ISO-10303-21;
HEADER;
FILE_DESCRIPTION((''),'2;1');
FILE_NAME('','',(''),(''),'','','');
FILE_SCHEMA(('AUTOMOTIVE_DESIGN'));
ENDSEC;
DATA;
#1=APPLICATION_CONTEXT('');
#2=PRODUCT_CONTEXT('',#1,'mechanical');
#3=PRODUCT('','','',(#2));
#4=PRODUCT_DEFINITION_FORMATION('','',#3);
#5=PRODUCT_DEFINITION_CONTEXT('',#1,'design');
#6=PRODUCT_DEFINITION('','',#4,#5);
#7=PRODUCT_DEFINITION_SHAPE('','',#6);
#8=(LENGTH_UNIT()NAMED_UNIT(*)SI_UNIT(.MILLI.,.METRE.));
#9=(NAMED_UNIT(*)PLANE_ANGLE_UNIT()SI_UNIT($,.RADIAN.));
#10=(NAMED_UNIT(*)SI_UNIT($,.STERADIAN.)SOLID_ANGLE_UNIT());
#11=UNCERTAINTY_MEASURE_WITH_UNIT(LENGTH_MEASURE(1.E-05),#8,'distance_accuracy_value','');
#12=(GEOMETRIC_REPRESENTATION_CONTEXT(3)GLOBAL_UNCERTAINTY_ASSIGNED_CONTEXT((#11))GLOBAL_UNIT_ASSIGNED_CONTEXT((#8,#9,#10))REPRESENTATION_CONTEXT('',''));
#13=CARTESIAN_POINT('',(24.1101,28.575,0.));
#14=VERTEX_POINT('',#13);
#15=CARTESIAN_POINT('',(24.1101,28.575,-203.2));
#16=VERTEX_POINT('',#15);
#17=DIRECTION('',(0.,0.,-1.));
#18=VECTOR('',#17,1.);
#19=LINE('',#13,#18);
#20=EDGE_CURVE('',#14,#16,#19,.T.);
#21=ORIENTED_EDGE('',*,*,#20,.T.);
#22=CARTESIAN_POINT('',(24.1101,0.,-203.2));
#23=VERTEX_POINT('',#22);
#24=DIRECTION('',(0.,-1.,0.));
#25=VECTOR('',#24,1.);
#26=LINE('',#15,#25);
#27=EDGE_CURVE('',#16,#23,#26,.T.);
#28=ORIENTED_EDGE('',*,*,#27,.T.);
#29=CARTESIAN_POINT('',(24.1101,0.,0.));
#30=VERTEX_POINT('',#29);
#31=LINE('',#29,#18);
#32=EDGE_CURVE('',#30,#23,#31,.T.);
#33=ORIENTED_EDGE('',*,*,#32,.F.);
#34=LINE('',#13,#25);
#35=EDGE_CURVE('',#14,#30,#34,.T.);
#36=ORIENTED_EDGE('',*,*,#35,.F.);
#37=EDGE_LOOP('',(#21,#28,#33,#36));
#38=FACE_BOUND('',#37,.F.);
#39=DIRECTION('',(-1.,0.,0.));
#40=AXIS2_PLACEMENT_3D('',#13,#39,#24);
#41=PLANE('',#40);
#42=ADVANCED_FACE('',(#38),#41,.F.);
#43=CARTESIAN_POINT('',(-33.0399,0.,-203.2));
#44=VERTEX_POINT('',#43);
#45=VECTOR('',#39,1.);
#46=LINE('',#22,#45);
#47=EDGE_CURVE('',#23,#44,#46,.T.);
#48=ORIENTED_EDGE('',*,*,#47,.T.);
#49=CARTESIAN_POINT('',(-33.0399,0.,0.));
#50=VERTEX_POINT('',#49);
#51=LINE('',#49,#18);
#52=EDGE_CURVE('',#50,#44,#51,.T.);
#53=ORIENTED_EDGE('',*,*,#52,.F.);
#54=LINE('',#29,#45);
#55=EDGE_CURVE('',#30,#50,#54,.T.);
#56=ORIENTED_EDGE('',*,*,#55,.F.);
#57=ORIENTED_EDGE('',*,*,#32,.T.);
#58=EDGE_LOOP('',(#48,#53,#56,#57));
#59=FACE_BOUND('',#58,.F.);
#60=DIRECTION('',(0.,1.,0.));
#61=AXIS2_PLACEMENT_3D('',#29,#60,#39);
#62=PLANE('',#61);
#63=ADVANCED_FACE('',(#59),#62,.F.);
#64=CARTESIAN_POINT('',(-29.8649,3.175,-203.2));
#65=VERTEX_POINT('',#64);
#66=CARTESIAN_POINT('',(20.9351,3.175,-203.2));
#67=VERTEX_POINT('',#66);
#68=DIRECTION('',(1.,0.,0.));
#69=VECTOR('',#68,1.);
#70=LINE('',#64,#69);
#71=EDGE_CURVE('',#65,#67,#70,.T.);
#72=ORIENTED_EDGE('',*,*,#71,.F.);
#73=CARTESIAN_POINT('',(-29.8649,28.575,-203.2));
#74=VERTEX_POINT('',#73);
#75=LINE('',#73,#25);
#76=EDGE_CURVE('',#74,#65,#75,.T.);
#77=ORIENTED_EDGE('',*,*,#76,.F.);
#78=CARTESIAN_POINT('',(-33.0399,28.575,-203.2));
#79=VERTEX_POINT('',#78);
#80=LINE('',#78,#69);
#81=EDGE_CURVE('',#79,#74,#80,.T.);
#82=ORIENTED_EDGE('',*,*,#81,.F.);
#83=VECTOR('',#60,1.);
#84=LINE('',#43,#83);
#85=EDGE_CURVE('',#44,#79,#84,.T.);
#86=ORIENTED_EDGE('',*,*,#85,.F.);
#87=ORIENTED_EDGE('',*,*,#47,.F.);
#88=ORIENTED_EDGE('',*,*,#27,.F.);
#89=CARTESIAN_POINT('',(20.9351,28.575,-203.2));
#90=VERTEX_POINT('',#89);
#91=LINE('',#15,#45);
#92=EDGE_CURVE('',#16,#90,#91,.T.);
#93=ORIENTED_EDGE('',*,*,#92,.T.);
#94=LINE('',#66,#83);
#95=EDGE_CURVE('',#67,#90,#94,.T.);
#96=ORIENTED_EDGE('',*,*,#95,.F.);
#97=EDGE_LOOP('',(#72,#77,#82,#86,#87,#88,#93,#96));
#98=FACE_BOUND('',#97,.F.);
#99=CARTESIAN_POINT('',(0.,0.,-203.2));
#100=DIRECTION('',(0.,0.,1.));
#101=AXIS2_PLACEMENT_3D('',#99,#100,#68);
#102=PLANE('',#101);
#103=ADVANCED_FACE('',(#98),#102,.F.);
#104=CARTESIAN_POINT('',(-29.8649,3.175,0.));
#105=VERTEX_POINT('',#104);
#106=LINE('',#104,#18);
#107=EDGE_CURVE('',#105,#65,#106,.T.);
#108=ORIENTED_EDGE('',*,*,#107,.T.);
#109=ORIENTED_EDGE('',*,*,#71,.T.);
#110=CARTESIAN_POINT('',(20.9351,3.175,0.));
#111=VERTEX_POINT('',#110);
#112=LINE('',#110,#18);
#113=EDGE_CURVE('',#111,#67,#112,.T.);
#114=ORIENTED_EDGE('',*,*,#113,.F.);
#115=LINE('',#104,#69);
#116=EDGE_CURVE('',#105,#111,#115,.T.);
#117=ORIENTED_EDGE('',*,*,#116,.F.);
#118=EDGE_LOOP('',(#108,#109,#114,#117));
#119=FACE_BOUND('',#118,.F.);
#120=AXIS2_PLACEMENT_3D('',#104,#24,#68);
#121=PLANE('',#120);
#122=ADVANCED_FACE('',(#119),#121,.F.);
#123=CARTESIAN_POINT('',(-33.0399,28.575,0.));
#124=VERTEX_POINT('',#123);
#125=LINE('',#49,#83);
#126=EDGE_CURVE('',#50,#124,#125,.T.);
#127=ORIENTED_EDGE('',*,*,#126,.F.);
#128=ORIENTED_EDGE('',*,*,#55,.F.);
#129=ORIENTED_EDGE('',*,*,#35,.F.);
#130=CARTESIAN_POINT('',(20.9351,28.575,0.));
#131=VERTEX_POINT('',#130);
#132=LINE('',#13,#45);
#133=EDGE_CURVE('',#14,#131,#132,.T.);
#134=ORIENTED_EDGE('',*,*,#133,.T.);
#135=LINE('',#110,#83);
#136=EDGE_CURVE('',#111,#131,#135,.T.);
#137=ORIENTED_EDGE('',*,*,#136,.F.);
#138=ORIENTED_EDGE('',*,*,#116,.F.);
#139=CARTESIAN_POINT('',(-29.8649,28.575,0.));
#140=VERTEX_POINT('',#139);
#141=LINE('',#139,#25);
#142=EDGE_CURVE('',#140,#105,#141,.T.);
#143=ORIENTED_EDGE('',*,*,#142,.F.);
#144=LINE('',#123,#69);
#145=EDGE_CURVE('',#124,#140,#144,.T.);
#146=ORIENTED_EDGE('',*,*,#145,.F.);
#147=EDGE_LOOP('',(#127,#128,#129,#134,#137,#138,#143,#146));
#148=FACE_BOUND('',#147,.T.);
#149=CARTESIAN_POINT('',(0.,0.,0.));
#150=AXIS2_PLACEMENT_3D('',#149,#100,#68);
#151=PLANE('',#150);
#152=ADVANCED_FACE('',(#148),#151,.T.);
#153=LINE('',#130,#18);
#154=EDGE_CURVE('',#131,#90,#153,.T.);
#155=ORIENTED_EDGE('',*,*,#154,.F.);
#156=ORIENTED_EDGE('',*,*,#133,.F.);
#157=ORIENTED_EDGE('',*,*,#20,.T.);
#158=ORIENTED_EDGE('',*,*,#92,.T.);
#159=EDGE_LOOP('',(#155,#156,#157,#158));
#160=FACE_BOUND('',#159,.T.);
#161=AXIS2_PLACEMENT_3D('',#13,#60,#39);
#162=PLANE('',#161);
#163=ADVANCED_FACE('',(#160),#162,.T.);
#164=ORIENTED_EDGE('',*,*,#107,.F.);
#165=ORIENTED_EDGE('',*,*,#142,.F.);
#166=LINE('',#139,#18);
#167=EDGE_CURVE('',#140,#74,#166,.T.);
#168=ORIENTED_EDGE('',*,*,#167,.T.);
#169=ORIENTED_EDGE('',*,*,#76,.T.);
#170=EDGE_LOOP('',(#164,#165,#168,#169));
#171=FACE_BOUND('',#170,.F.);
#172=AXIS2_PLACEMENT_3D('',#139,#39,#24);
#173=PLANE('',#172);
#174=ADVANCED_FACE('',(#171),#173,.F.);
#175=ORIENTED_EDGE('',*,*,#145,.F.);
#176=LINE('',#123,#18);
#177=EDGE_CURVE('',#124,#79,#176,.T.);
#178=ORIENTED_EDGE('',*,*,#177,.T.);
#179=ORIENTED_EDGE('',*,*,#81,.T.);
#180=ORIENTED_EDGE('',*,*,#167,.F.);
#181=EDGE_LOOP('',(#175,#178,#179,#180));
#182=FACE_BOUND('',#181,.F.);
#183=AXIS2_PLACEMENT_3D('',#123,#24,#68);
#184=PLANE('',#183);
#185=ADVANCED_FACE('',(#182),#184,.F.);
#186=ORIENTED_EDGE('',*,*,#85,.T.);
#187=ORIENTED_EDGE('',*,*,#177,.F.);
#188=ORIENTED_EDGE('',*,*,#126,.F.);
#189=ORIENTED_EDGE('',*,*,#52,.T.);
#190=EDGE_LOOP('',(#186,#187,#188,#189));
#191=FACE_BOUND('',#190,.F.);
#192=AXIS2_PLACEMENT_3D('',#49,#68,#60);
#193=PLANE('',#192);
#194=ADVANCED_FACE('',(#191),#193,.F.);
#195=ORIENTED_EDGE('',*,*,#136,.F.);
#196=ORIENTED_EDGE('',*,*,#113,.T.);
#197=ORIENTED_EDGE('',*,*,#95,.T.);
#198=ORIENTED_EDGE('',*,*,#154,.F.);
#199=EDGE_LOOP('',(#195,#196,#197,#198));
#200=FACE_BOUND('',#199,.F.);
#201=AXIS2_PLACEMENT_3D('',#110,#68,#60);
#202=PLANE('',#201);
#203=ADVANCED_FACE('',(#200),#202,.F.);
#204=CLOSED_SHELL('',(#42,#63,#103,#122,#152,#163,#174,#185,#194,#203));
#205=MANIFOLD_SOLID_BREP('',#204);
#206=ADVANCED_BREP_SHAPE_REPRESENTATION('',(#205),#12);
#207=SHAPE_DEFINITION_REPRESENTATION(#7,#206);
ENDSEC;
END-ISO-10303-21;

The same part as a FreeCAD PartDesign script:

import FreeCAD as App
import Part
import Sketcher

V = App.Vector
Q = App.Units.Quantity

doc = App.newDocument("Part")
body = doc.addObject("PartDesign::Body", "Body")

# Sketch on XY plane
sketch1 = body.newObject("Sketcher::SketchObject", "Sketch")
sketch1.AttachmentSupport = (doc.getObject("XY_Plane"), [""])
sketch1.MapMode = "FlatFace"
sketch1.addGeometry(Part.LineSegment(V(24.1, 0, 0), V(24.1, 28.6, 0)), False)
sketch1.addGeometry(Part.LineSegment(V(24.1, 28.6, 0), V(20.9, 28.6, 0)), False)
sketch1.addGeometry(Part.LineSegment(V(20.9, 28.6, 0), V(20.9, 3.2, 0)), False)
sketch1.addGeometry(Part.LineSegment(V(20.9, 3.2, 0), V(-29.9, 3.2, 0)), False)
sketch1.addGeometry(Part.LineSegment(V(-29.9, 3.2, 0), V(-29.9, 28.6, 0)), False)
sketch1.addGeometry(Part.LineSegment(V(-29.9, 28.6, 0), V(-33, 28.6, 0)), False)
sketch1.addGeometry(Part.LineSegment(V(-33, 28.6, 0), V(-33, 0, 0)), False)
sketch1.addGeometry(Part.LineSegment(V(-33, 0, 0), V(24.1, 0, 0)), False)
sketch1.addConstraint(Sketcher.Constraint("Coincident", 0, 2, 1, 1))
sketch1.addConstraint(Sketcher.Constraint("Coincident", 1, 2, 2, 1))
sketch1.addConstraint(Sketcher.Constraint("Coincident", 2, 2, 3, 1))
sketch1.addConstraint(Sketcher.Constraint("Coincident", 3, 2, 4, 1))
sketch1.addConstraint(Sketcher.Constraint("Coincident", 4, 2, 5, 1))
sketch1.addConstraint(Sketcher.Constraint("Coincident", 5, 2, 6, 1))
sketch1.addConstraint(Sketcher.Constraint("Coincident", 6, 2, 7, 1))
sketch1.addConstraint(Sketcher.Constraint("Coincident", 7, 2, 0, 1))
sketch1.addConstraint(Sketcher.Constraint("Vertical", 0))
sketch1.addConstraint(Sketcher.Constraint("Horizontal", 1))
sketch1.addConstraint(Sketcher.Constraint("Vertical", 2))
sketch1.addConstraint(Sketcher.Constraint("Horizontal", 3))
sketch1.addConstraint(Sketcher.Constraint("Vertical", 4))
sketch1.addConstraint(Sketcher.Constraint("Horizontal", 5))
sketch1.addConstraint(Sketcher.Constraint("Vertical", 6))
sketch1.addConstraint(Sketcher.Constraint("Horizontal", 7))
sketch1.addConstraint(Sketcher.Constraint("PointOnObject", 6, 2, -1))
sketch1.addConstraint(Sketcher.Constraint("Horizontal", 1, 2, 4, 2))
sketch1.addConstraint(Sketcher.Constraint("Equal", 1, 5))
sketch1.addConstraint(Sketcher.Constraint("DistanceX", 7, 1, 7, 2, Q("2.25 in")))
sketch1.addConstraint(Sketcher.Constraint("DistanceX", 1, 2, 1, 1, Q("0.125 in")))
sketch1.addConstraint(Sketcher.Constraint("DistanceY", 0, 1, 0, 2, Q("1.125 in")))
sketch1.addConstraint(Sketcher.Constraint("DistanceY", 2, 2, 2, 1, Q("1 in")))
sketch1.addConstraint(Sketcher.Constraint("DistanceX", -1, 1, 0, 2, Q("24.11 mm")))
pad1 = body.newObject("PartDesign::Pad", "Pad")
pad1.Profile = sketch1
pad1.Length = Q("8 in")
pad1.Reversed = True

doc.recompute()
